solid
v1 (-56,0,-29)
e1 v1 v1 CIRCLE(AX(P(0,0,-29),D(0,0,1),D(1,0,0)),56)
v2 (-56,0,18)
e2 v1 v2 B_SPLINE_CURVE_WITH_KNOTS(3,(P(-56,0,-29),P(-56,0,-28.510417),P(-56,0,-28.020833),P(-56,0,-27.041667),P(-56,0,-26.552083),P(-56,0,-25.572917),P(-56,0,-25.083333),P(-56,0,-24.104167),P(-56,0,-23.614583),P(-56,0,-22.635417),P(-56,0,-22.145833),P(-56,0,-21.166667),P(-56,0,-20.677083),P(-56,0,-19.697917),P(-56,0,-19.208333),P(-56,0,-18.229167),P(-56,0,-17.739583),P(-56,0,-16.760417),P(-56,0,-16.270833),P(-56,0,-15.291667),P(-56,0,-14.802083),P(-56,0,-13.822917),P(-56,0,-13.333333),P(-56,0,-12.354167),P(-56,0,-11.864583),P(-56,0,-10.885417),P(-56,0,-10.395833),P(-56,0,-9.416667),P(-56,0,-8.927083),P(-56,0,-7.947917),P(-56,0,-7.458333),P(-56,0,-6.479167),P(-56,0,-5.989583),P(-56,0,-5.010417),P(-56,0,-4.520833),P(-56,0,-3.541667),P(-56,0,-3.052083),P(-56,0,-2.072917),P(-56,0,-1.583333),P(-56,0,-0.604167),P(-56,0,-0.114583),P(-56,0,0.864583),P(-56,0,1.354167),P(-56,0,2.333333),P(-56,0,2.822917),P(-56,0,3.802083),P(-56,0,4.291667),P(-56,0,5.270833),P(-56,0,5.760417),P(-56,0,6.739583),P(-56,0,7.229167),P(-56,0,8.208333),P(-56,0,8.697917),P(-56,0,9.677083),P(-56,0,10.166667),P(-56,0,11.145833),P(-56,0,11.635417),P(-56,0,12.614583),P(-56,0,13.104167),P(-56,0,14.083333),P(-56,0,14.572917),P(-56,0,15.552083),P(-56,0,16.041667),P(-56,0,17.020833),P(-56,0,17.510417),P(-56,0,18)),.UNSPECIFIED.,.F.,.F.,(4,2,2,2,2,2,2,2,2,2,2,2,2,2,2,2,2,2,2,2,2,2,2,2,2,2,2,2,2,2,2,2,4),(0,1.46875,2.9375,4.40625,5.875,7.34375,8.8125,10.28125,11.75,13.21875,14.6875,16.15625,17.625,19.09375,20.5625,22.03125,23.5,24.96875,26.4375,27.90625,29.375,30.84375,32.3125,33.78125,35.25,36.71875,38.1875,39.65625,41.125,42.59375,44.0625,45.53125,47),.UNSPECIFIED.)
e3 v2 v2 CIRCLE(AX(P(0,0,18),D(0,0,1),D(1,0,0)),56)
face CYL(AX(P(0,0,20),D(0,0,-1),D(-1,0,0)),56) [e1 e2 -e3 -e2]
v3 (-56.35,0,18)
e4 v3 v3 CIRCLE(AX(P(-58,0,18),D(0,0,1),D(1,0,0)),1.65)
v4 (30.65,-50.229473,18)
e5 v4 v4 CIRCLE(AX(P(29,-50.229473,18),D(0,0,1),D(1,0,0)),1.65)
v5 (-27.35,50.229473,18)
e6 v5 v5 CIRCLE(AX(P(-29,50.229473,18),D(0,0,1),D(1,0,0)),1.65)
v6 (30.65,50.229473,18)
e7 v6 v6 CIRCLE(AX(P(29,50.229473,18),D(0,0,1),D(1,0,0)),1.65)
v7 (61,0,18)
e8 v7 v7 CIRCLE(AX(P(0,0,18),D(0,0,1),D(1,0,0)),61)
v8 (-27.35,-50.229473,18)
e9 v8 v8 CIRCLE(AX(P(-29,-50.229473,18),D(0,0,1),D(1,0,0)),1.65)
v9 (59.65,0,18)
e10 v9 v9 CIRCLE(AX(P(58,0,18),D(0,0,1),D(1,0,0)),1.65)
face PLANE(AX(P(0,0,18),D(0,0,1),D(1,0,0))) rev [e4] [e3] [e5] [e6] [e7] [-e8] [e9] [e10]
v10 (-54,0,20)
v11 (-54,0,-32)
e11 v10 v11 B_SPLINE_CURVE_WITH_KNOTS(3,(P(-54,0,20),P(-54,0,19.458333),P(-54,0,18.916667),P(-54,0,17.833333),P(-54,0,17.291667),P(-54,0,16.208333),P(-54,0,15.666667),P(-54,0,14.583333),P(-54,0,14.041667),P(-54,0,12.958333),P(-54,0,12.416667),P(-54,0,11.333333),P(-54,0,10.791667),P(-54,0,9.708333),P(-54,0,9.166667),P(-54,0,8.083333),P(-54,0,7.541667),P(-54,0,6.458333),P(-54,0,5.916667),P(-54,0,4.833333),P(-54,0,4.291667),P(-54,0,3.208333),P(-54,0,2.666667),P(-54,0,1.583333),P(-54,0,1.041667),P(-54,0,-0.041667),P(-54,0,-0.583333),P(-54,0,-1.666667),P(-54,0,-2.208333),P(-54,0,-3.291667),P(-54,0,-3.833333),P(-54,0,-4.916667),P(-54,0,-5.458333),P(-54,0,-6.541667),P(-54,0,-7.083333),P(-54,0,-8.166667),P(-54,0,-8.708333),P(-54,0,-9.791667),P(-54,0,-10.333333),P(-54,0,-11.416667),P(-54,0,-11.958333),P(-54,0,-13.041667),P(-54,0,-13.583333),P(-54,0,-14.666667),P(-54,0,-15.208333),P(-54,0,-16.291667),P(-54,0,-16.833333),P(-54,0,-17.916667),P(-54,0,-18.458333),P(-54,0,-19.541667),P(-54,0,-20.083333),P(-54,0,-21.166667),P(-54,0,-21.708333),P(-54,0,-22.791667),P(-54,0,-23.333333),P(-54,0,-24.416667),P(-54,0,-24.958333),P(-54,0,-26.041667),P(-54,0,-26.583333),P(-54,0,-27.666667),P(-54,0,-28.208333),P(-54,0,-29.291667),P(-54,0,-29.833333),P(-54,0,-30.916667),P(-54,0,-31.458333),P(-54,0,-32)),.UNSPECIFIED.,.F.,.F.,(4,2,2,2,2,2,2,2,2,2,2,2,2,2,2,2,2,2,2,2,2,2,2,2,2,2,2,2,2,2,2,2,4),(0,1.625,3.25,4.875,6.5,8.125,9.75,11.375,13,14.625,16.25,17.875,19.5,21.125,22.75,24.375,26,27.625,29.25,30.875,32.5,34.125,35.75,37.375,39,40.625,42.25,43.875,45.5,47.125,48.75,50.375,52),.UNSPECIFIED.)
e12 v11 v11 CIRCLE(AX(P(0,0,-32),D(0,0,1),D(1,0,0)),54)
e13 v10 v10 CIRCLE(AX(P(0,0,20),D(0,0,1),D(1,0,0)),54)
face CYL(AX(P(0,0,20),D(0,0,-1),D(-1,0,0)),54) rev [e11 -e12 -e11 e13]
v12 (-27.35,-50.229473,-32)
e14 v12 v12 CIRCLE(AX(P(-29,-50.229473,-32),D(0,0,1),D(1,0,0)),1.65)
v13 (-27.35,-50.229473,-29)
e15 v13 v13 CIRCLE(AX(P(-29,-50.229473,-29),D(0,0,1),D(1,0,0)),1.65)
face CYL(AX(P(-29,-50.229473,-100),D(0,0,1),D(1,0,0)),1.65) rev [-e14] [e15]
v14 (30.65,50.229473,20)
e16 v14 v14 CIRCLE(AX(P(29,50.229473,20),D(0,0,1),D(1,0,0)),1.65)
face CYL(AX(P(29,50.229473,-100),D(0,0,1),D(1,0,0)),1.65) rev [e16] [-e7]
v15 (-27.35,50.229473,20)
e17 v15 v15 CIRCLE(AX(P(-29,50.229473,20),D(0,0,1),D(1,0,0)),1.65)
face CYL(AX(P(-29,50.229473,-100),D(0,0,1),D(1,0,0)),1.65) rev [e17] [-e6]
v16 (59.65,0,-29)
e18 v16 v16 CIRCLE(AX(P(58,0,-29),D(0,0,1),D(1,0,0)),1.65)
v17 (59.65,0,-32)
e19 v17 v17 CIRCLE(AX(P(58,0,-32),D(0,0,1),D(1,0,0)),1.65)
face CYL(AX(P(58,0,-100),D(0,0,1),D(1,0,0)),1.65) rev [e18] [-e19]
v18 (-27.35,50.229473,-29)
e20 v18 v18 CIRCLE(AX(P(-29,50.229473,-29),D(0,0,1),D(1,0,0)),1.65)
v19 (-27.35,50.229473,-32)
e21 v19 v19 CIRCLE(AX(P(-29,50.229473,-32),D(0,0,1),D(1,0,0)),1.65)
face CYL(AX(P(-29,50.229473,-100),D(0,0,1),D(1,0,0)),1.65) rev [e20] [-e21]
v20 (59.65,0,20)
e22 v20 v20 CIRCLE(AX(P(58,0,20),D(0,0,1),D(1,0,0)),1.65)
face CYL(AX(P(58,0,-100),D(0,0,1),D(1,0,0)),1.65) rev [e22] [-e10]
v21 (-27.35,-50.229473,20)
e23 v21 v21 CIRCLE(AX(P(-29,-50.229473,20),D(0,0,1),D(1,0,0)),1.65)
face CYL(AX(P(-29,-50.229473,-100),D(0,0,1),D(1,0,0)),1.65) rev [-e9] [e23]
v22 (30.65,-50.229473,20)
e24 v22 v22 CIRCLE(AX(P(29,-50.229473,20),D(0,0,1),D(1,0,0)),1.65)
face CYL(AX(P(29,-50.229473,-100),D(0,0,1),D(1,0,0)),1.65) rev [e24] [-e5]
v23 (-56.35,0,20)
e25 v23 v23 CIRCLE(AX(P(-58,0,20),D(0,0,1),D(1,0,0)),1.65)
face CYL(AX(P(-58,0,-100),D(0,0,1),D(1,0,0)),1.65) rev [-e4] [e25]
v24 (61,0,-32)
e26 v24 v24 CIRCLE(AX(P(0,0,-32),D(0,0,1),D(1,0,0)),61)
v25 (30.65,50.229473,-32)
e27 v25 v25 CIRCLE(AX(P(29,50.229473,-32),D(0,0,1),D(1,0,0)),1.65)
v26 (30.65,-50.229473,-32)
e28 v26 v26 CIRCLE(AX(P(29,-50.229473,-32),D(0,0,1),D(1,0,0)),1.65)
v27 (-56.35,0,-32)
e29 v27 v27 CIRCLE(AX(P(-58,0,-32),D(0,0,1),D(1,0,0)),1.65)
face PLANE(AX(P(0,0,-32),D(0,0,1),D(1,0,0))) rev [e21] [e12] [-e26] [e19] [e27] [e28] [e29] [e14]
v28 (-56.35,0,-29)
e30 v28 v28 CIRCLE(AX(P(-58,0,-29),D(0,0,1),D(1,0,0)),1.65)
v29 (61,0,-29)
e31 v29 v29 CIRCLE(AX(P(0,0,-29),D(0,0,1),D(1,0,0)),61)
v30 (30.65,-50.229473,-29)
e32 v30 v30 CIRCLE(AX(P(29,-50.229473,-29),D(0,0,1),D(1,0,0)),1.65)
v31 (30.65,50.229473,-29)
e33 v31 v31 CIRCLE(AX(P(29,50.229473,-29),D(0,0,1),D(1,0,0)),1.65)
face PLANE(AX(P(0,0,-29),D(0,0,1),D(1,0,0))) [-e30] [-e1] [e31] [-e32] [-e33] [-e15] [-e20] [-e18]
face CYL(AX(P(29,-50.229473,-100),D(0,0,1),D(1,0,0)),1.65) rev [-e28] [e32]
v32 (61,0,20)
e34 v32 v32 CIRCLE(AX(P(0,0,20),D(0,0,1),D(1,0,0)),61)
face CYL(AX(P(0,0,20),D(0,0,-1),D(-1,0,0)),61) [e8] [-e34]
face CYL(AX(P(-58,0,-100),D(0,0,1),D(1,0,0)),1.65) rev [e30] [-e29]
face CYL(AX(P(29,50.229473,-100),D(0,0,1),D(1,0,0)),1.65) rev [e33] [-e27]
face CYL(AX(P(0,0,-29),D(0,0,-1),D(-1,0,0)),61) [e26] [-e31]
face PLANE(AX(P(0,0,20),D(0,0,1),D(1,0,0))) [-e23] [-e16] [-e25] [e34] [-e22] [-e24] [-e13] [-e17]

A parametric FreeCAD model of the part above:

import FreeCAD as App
import Part
import Sketcher

V = App.Vector

doc = App.newDocument("Part")
body = doc.addObject("PartDesign::Body", "Body")

# Sketch on XY plane
sketch1 = doc.addObject("Sketcher::SketchObject", "Sketch")
body.addObject(sketch1)
sketch1.AttachmentSupport = (doc.XY_Plane, [""])
sketch1.MapMode = "FlatFace"
sketch1.AttachmentOffset = App.Placement(V(0, 0, -32), App.Rotation())
sketch1.addGeometry([
    Part.Circle(V(0, 0, 0), V(0, 0, 1), 56),
    Part.Circle(V(0, 0, 0), V(0, 0, 1), 54),
], False)
sketch1.addConstraint([
    Sketcher.Constraint("Coincident", 0, 3, -1, 1),
    Sketcher.Constraint("Coincident", 1, 3, -1, 1),
    Sketcher.Constraint("Diameter", 0, 112.0),
    Sketcher.Constraint("Diameter", 1, 108.0),
])
pad1 = doc.addObject("PartDesign::Pad", "Pad")
body.addObject(pad1)
pad1.Profile = sketch1
pad1.Length = 52

# Sketch on XY plane
sketch2 = doc.addObject("Sketcher::SketchObject", "Sketch001")
body.addObject(sketch2)
sketch2.AttachmentSupport = (doc.XY_Plane, [""])
sketch2.MapMode = "FlatFace"
sketch2.AttachmentOffset = App.Placement(V(0, 0, -32), App.Rotation())
sketch2.addGeometry([
    Part.Circle(V(0, 0, 0), V(0, 0, 1), 61),
    Part.Circle(V(0, 0, 0), V(0, 0, 1), 54),
], False)
sketch2.addConstraint([
    Sketcher.Constraint("Coincident", 0, 3, -1, 1),
    Sketcher.Constraint("Coincident", 1, 3, -1, 1),
    Sketcher.Constraint("Diameter", 0, 122.0),
    Sketcher.Constraint("Diameter", 1, 108.0),
])
pad2 = doc.addObject("PartDesign::Pad", "Pad001")
body.addObject(pad2)
pad2.Profile = sketch2
pad2.Length = 3

# Sketch on XY plane
sketch3 = doc.addObject("Sketcher::SketchObject", "Sketch002")
body.addObject(sketch3)
sketch3.AttachmentSupport = (doc.XY_Plane, [""])
sketch3.MapMode = "FlatFace"
sketch3.AttachmentOffset = App.Placement(V(0, 0, 18), App.Rotation())
sketch3.addGeometry([
    Part.Circle(V(0, 0, 0), V(0, 0, 1), 61),
    Part.Circle(V(0, 0, 0), V(0, 0, 1), 54),
], False)
sketch3.addConstraint([
    Sketcher.Constraint("Coincident", 0, 3, -1, 1),
    Sketcher.Constraint("Coincident", 1, 3, -1, 1),
    Sketcher.Constraint("Diameter", 0, 122.0),
    Sketcher.Constraint("Diameter", 1, 108.0),
])
pad3 = doc.addObject("PartDesign::Pad", "Pad002")
body.addObject(pad3)
pad3.Profile = sketch3
pad3.Length = 2

# Sketch on XY plane
sketch4 = doc.addObject("Sketcher::SketchObject", "Sketch003")
body.addObject(sketch4)
sketch4.AttachmentSupport = (doc.XY_Plane, [""])
sketch4.MapMode = "FlatFace"
sketch4.addGeometry([
    Part.Circle(V(58, 0, 0), V(0, 0, 1), 1.6),  # 0
    Part.Circle(V(29, 50.2, 0), V(0, 0, 1), 1.6),  # 1
    Part.Circle(V(-29, 50.2, 0), V(0, 0, 1), 1.6),  # 2
    Part.Circle(V(-58, 0, 0), V(0, 0, 1), 1.6),  # 3
    Part.Circle(V(-29, -50.2, 0), V(0, 0, 1), 1.6),  # 4
    Part.Circle(V(29, -50.2, 0), V(0, 0, 1), 1.6),  # 5
], False)
sketch4.addConstraint([
    Sketcher.Constraint("Equal", 0, 1),
    Sketcher.Constraint("Equal", 1, 2),
    Sketcher.Constraint("Equal", 2, 3),
    Sketcher.Constraint("Equal", 3, 4),
    Sketcher.Constraint("Equal", 4, 5),
    Sketcher.Constraint("Symmetric", 0, 3, 3, 3, -1, 1),
    Sketcher.Constraint("Symmetric", 1, 3, 4, 3, -1, 1),
    Sketcher.Constraint("Symmetric", 2, 3, 5, 3, -1, 1),
    Sketcher.Constraint("Symmetric", 1, 3, 2, 3, -2),
    Sketcher.Constraint("PointOnObject", 0, 3, -1),
    Sketcher.Constraint("Diameter", 0, 3.3),
    Sketcher.Constraint("DistanceX", -1, 1, 0, 3, 58.0),
    Sketcher.Constraint("DistanceX", -1, 1, 1, 3, 29.0),
    Sketcher.Constraint("DistanceY", -1, 1, 1, 3, 50.229473),
])
pocket1 = doc.addObject("PartDesign::Pocket", "Pocket")
body.addObject(pocket1)
pocket1.Profile = sketch4
pocket1.Length = 200
pocket1.Midplane = True

doc.recompute()
